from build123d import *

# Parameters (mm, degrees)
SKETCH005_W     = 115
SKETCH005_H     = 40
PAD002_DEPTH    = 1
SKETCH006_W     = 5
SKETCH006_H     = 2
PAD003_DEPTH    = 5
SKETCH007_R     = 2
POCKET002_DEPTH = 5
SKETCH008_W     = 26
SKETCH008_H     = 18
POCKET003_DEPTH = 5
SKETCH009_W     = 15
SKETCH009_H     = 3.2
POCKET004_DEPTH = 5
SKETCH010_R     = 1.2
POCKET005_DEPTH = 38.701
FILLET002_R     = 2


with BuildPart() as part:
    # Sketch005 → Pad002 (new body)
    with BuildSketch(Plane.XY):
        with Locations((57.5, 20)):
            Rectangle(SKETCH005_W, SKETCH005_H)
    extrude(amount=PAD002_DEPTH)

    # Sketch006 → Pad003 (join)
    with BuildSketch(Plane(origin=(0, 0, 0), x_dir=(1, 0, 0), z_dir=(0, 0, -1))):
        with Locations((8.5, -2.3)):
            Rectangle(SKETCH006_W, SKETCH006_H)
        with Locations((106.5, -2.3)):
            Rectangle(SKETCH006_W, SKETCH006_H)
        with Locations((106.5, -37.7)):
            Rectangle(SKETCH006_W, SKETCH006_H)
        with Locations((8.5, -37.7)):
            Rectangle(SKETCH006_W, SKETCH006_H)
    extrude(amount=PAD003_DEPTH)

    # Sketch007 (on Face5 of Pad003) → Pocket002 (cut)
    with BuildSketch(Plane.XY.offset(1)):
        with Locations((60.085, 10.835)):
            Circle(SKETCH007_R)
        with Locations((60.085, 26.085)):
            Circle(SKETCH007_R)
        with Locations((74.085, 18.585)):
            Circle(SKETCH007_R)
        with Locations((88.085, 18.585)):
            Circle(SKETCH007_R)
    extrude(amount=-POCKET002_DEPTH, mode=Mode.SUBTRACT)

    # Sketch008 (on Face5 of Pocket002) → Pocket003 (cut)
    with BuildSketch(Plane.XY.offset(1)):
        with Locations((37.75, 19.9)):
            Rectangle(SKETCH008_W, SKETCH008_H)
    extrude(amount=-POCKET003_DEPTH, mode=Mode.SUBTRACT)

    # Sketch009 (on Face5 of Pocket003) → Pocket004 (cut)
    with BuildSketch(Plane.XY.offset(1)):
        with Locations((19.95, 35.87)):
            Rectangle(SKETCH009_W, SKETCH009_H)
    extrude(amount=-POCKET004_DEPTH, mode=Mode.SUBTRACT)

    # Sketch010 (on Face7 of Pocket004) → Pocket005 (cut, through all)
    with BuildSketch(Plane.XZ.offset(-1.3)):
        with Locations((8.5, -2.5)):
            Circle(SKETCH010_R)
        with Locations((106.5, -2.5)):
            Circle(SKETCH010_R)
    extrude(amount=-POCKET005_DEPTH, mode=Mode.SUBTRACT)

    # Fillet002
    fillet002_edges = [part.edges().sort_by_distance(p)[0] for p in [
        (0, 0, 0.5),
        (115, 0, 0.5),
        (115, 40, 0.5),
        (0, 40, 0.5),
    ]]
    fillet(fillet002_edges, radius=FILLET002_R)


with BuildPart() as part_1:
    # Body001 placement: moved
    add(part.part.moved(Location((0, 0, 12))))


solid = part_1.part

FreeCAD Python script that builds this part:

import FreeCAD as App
import Part
import Sketcher

V = App.Vector
Q = App.Units.Quantity


def edges_at(feature, points):
    """Names of the edges that pass closest to the given points."""
    edges = feature.Shape.Edges
    near = lambda p: min(range(len(edges)), key=lambda i: edges[i].distToShape(Part.Vertex(*p))[0])
    return sorted({f"Edge{near(p) + 1}" for p in points})


def add_polygon(sketch, points):
    """Adds a closed chain of lines whose ends are joined by coincident constraints."""
    first, n = sketch.GeometryCount, len(points)
    for a, b in zip(points, points[1:] + points[:1]):
        sketch.addGeometry(Part.LineSegment(App.Vector(*a, 0), App.Vector(*b, 0)), False)
    for i in range(n):
        sketch.addConstraint(Sketcher.Constraint("Coincident", first + i, 2, first + (i + 1) % n, 1))

doc = App.newDocument("Part")
body = doc.addObject("PartDesign::Body", "Body")

# Sketch on XY plane
sketch1 = doc.addObject("Sketcher::SketchObject", "Sketch")
body.addObject(sketch1)
sketch1.AttachmentSupport = (doc.XY_Plane, [""])
sketch1.MapMode = "FlatFace"
add_polygon(sketch1, [(0, 40), (0, 0), (115, 0), (115, 40)])  # lines 0-3
sketch1.addConstraint(Sketcher.Constraint("Vertical", 0))
sketch1.addConstraint(Sketcher.Constraint("Horizontal", 1))
sketch1.addConstraint(Sketcher.Constraint("Vertical", 2))
sketch1.addConstraint(Sketcher.Constraint("Horizontal", 3))
sketch1.addConstraint(Sketcher.Constraint("Coincident", 0, 2, -1, 1))
sketch1.addConstraint(Sketcher.Constraint("DistanceX", 1, 1, 1, 2, Q("115 mm")))
sketch1.addConstraint(Sketcher.Constraint("DistanceY", 0, 2, 0, 1, Q("40 mm")))
pad1 = doc.addObject("PartDesign::Pad", "Pad")
body.addObject(pad1)
pad1.Profile = sketch1
pad1.Length = 1

# Sketch on XY plane
sketch2 = doc.addObject("Sketcher::SketchObject", "Sketch001")
body.addObject(sketch2)
sketch2.AttachmentSupport = (doc.XY_Plane, [""])
sketch2.MapMode = "FlatFace"
add_polygon(sketch2, [(6, 1.3), (6, 3.3), (11, 3.3), (11, 1.3)])  # lines 0-3
add_polygon(sketch2, [(104, 1.3), (104, 3.3), (109, 3.3), (109, 1.3)])  # lines 4-7
add_polygon(sketch2, [(104, 36.7), (104, 38.7), (109, 38.7), (109, 36.7)])  # lines 8-11
add_polygon(sketch2, [(6, 36.7), (6, 38.7), (11, 38.7), (11, 36.7)])  # lines 12-15
sketch2.addConstraint(Sketcher.Constraint("Vertical", 0))
sketch2.addConstraint(Sketcher.Constraint("Horizontal", 1))
sketch2.addConstraint(Sketcher.Constraint("Vertical", 2))
sketch2.addConstraint(Sketcher.Constraint("Horizontal", 3))
sketch2.addConstraint(Sketcher.Constraint("Vertical", 4))
sketch2.addConstraint(Sketcher.Constraint("Horizontal", 5))
sketch2.addConstraint(Sketcher.Constraint("Vertical", 6))
sketch2.addConstraint(Sketcher.Constraint("Horizontal", 7))
sketch2.addConstraint(Sketcher.Constraint("Vertical", 8))
sketch2.addConstraint(Sketcher.Constraint("Horizontal", 9))
sketch2.addConstraint(Sketcher.Constraint("Vertical", 10))
sketch2.addConstraint(Sketcher.Constraint("Horizontal", 11))
sketch2.addConstraint(Sketcher.Constraint("Vertical", 12))
sketch2.addConstraint(Sketcher.Constraint("Horizontal", 13))
sketch2.addConstraint(Sketcher.Constraint("Vertical", 14))
sketch2.addConstraint(Sketcher.Constraint("Horizontal", 15))
sketch2.addConstraint(Sketcher.Constraint("Horizontal", 1, 2, 4, 2))
sketch2.addConstraint(Sketcher.Constraint("Horizontal", 3, 2, 6, 2))
sketch2.addConstraint(Sketcher.Constraint("Horizontal", 9, 2, 12, 2))
sketch2.addConstraint(Sketcher.Constraint("Horizontal", 11, 2, 14, 2))
sketch2.addConstraint(Sketcher.Constraint("Vertical", 7, 2, 8, 2))
sketch2.addConstraint(Sketcher.Constraint("Vertical", 6, 2, 9, 2))
sketch2.addConstraint(Sketcher.Constraint("Vertical", 3, 2, 12, 2))
sketch2.addConstraint(Sketcher.Constraint("Vertical", 2, 2, 13, 2))
sketch2.addConstraint(Sketcher.Constraint("Equal", 3, 5))
sketch2.addConstraint(Sketcher.Constraint("Equal", 6, 8))
sketch2.addConstraint(Sketcher.Constraint("DistanceX", 1, 1, 1, 2, Q("5 mm")))
sketch2.addConstraint(Sketcher.Constraint("DistanceY", 0, 1, 0, 2, Q("2 mm")))
sketch2.addConstraint(Sketcher.Constraint("DistanceX", -1, 1, 0, 2, Q("6 mm")))
sketch2.addConstraint(Sketcher.Constraint("DistanceX", -1, 1, 4, 2, Q("104 mm")))
sketch2.addConstraint(Sketcher.Constraint("DistanceY", -1, 1, 0, 2, Q("3.3 mm")))
sketch2.addConstraint(Sketcher.Constraint("DistanceY", -1, 1, 8, 2, Q("38.7 mm")))
pad2 = doc.addObject("PartDesign::Pad", "Pad001")
body.addObject(pad2)
pad2.Profile = sketch2
pad2.Length = 5
pad2.Reversed = True

# Sketch on XY plane
sketch3 = doc.addObject("Sketcher::SketchObject", "Sketch002")
body.addObject(sketch3)
sketch3.AttachmentSupport = (doc.XY_Plane, [""])
sketch3.MapMode = "FlatFace"
sketch3.AttachmentOffset = App.Placement(V(0, 0, 1), App.Rotation())
sketch3.addGeometry(Part.Circle(V(60.085, 10.835, 0), V(0, 0, 1), 2), False)
sketch3.addGeometry(Part.Circle(V(60.085, 26.085, 0), V(0, 0, 1), 2), False)
sketch3.addGeometry(Part.Circle(V(74.085, 18.585, 0), V(0, 0, 1), 2), False)
sketch3.addGeometry(Part.Circle(V(88.085, 18.585, 0), V(0, 0, 1), 2), False)
sketch3.addConstraint(Sketcher.Constraint("Equal", 0, 1))
sketch3.addConstraint(Sketcher.Constraint("Equal", 1, 2))
sketch3.addConstraint(Sketcher.Constraint("Equal", 2, 3))
sketch3.addConstraint(Sketcher.Constraint("Horizontal", 2, 3, 3, 3))
sketch3.addConstraint(Sketcher.Constraint("Vertical", 0, 3, 1, 3))
sketch3.addConstraint(Sketcher.Constraint("Diameter", 0, Q("4 mm")))
sketch3.addConstraint(Sketcher.Constraint("DistanceX", 1, 3, 2, 3, Q("14 mm")))
sketch3.addConstraint(Sketcher.Constraint("DistanceX", 2, 3, 3, 3, Q("14 mm")))
sketch3.addConstraint(Sketcher.Constraint("DistanceY", 2, 3, 1, 3, Q("7.5 mm")))
sketch3.addConstraint(Sketcher.Constraint("DistanceY", 0, 3, 1, 3, Q("15.25 mm")))
sketch3.addConstraint(Sketcher.Constraint("DistanceX", -1, 1, 0, 3, Q("60.085 mm")))
sketch3.addConstraint(Sketcher.Constraint("DistanceY", -1, 1, 0, 3, Q("10.835 mm")))
pocket1 = doc.addObject("PartDesign::Pocket", "Pocket")
body.addObject(pocket1)
pocket1.Profile = sketch3
pocket1.Length = 5

# Sketch on XY plane
sketch4 = doc.addObject("Sketcher::SketchObject", "Sketch003")
body.addObject(sketch4)
sketch4.AttachmentSupport = (doc.XY_Plane, [""])
sketch4.MapMode = "FlatFace"
sketch4.AttachmentOffset = App.Placement(V(0, 0, 1), App.Rotation())
add_polygon(sketch4, [(24.75, 28.9), (24.75, 10.9), (50.75, 10.9), (50.75, 28.9)])  # lines 0-3
sketch4.addConstraint(Sketcher.Constraint("Vertical", 0))
sketch4.addConstraint(Sketcher.Constraint("Horizontal", 1))
sketch4.addConstraint(Sketcher.Constraint("Vertical", 2))
sketch4.addConstraint(Sketcher.Constraint("Horizontal", 3))
sketch4.addConstraint(Sketcher.Constraint("DistanceX", 1, 1, 1, 2, Q("26 mm")))
sketch4.addConstraint(Sketcher.Constraint("DistanceY", 0, 2, 0, 1, Q("18 mm")))
sketch4.addConstraint(Sketcher.Constraint("DistanceY", -1, 1, 0, 2, Q("10.9 mm")))
sketch4.addConstraint(Sketcher.Constraint("DistanceX", -1, 1, 0, 2, Q("24.75 mm")))
pocket2 = doc.addObject("PartDesign::Pocket", "Pocket001")
body.addObject(pocket2)
pocket2.Profile = sketch4
pocket2.Length = 5

# Sketch on XY plane
sketch5 = doc.addObject("Sketcher::SketchObject", "Sketch004")
body.addObject(sketch5)
sketch5.AttachmentSupport = (doc.XY_Plane, [""])
sketch5.MapMode = "FlatFace"
sketch5.AttachmentOffset = App.Placement(V(0, 0, 1), App.Rotation())
add_polygon(sketch5, [(12.45, 37.47), (12.45, 34.27), (27.45, 34.27), (27.45, 37.47)])  # lines 0-3
sketch5.addConstraint(Sketcher.Constraint("Vertical", 0))
sketch5.addConstraint(Sketcher.Constraint("Horizontal", 1))
sketch5.addConstraint(Sketcher.Constraint("Vertical", 2))
sketch5.addConstraint(Sketcher.Constraint("Horizontal", 3))
sketch5.addConstraint(Sketcher.Constraint("DistanceX", 1, 1, 1, 2, Q("15 mm")))
sketch5.addConstraint(Sketcher.Constraint("DistanceY", 0, 2, 0, 1, Q("3.2 mm")))
sketch5.addConstraint(Sketcher.Constraint("DistanceX", -1, 1, 0, 2, Q("12.45 mm")))
sketch5.addConstraint(Sketcher.Constraint("DistanceY", -1, 1, 0, 2, Q("34.27 mm")))
pocket3 = doc.addObject("PartDesign::Pocket", "Pocket002")
body.addObject(pocket3)
pocket3.Profile = sketch5
pocket3.Length = 5

# Sketch on XZ plane
sketch6 = doc.addObject("Sketcher::SketchObject", "Sketch005")
body.addObject(sketch6)
sketch6.AttachmentSupport = (doc.XZ_Plane, [""])
sketch6.MapMode = "FlatFace"
sketch6.AttachmentOffset = App.Placement(V(0, 0, -1.3), App.Rotation())
sketch6.addGeometry(Part.Circle(V(8.5, -2.5, 0), V(0, 0, 1), 1.2), False)
sketch6.addGeometry(Part.Circle(V(106.5, -2.5, 0), V(0, 0, 1), 1.2), False)
sketch6.addConstraint(Sketcher.Constraint("Equal", 0, 1))
sketch6.addConstraint(Sketcher.Constraint("Horizontal", 0, 3, 1, 3))
sketch6.addConstraint(Sketcher.Constraint("Diameter", 0, Q("2.4 mm")))
sketch6.addConstraint(Sketcher.Constraint("DistanceX", 0, 3, 1, 3, Q("98 mm")))
sketch6.addConstraint(Sketcher.Constraint("DistanceX", -1, 1, 0, 3, Q("8.5 mm")))
sketch6.addConstraint(Sketcher.Constraint("DistanceY", 0, 3, -1, 1, Q("2.5 mm")))
pocket4 = doc.addObject("PartDesign::Pocket", "Pocket003")
body.addObject(pocket4)
pocket4.Profile = sketch6
pocket4.Type = "ThroughAll"
doc.recompute()

fillet = doc.addObject("PartDesign::Fillet", "Fillet")
body.addObject(fillet)
fillet.Base = (pocket4, edges_at(pocket4, [
    (0, 0, 0.5),
    (115, 0, 0.5),
    (115, 40, 0.5),
    (0, 40, 0.5),
]))
fillet.Radius = 2
body2 = doc.addObject("PartDesign::Body", "Body001")
doc.recompute()

body.Placement = App.Placement(V(0, 0, 12), App.Rotation(V(0, 0, 1), 0))
boolean = doc.addObject("PartDesign::Boolean", "Boolean")
body2.addObject(boolean)
boolean.Type = "Fuse"
boolean.addObjects([body])

doc.recompute()
